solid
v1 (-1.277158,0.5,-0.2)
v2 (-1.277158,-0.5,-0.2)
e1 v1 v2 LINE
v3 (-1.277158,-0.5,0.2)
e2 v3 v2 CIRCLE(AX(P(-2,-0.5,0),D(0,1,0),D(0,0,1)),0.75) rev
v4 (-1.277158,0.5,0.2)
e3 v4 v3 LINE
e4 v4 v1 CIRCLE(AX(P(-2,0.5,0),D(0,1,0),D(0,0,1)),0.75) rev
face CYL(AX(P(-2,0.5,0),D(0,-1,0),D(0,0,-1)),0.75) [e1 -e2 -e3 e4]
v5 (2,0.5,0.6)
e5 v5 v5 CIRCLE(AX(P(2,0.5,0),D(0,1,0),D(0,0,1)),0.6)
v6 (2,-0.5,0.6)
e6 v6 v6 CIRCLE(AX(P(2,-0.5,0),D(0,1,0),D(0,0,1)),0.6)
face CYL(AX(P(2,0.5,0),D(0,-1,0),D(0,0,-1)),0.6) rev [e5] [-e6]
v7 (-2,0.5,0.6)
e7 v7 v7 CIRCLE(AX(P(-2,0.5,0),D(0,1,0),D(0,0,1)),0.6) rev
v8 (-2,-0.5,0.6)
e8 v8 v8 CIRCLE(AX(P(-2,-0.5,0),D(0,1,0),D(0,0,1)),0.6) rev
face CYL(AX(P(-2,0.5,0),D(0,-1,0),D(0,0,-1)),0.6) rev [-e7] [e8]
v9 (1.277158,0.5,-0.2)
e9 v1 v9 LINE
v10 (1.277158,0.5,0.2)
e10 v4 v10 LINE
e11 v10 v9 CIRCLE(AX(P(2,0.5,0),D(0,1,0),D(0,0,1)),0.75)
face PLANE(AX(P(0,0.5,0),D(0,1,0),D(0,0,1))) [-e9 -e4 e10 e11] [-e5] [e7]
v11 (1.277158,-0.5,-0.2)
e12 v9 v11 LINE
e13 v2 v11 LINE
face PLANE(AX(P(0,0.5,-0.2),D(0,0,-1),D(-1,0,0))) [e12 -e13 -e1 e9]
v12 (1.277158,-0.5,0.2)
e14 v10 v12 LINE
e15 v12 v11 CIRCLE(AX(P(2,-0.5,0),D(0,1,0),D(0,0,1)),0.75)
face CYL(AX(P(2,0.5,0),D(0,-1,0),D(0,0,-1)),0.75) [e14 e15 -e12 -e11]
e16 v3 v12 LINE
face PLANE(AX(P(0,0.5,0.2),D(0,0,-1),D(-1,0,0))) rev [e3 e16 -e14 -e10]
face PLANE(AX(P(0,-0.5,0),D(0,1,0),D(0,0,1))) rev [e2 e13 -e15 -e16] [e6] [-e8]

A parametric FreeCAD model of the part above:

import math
import FreeCAD as App
import Part
import Sketcher
from FreeCAD import Vector

doc = App.newDocument("Part")
body = doc.addObject("PartDesign::Body", "Body")

sketch1 = body.newObject("Sketcher::SketchObject", "Sketch")
sketch1.AttachmentSupport = (doc.getObject("XZ_Plane"), [""])
sketch1.MapMode = "FlatFace"
sketch1.addGeometry([
    Part.LineSegment(Vector(1.28, -0.2, 0), Vector(-1.28, -0.2, 0)),
    Part.ArcOfCircle(Part.Circle(Vector(-2, 0, 0), Vector(0, 0, 1), 0.75), math.radians(15), math.radians(345)),
    Part.LineSegment(Vector(-1.28, 0.2, 0), Vector(1.28, 0.2, 0)),
    Part.ArcOfCircle(Part.Circle(Vector(2, 0, 0), Vector(0, 0, 1), 0.75), math.radians(-165), math.radians(165)),
    Part.Circle(Vector(-2, 0, 0), Vector(0, 0, 1), 0.6),
    Part.Circle(Vector(2, 0, 0), Vector(0, 0, 1), 0.6),
], False)
sketch1.addConstraint([
    Sketcher.Constraint("Coincident", 0, 2, 1, 2),
    Sketcher.Constraint("Coincident", 1, 1, 2, 1),
    Sketcher.Constraint("Coincident", 2, 2, 3, 2),
    Sketcher.Constraint("Coincident", 3, 1, 0, 1),
    Sketcher.Constraint("Horizontal", 0),
    Sketcher.Constraint("Horizontal", 2),
    Sketcher.Constraint("Coincident", 4, 3, 1, 3),
    Sketcher.Constraint("Coincident", 5, 3, 3, 3),
    Sketcher.Constraint("Equal", 1, 3),
    Sketcher.Constraint("Equal", 4, 5),
    Sketcher.Constraint("Symmetric", 1, 3, 3, 3, -1, 1),
    Sketcher.Constraint("Symmetric", 0, 2, 1, 1, -1),
    Sketcher.Constraint("Diameter", 4, 1.2),
    Sketcher.Constraint("Radius", 1, 0.75),
    Sketcher.Constraint("DistanceX", 1, 3, -1, 1, 2.0),
    Sketcher.Constraint("DistanceY", 0, 2, -1, 1, 0.2),
])
pad1 = body.newObject("PartDesign::Pad", "Pad")
pad1.Profile = sketch1
pad1.Length = 1
pad1.Midplane = True

doc.recompute()
